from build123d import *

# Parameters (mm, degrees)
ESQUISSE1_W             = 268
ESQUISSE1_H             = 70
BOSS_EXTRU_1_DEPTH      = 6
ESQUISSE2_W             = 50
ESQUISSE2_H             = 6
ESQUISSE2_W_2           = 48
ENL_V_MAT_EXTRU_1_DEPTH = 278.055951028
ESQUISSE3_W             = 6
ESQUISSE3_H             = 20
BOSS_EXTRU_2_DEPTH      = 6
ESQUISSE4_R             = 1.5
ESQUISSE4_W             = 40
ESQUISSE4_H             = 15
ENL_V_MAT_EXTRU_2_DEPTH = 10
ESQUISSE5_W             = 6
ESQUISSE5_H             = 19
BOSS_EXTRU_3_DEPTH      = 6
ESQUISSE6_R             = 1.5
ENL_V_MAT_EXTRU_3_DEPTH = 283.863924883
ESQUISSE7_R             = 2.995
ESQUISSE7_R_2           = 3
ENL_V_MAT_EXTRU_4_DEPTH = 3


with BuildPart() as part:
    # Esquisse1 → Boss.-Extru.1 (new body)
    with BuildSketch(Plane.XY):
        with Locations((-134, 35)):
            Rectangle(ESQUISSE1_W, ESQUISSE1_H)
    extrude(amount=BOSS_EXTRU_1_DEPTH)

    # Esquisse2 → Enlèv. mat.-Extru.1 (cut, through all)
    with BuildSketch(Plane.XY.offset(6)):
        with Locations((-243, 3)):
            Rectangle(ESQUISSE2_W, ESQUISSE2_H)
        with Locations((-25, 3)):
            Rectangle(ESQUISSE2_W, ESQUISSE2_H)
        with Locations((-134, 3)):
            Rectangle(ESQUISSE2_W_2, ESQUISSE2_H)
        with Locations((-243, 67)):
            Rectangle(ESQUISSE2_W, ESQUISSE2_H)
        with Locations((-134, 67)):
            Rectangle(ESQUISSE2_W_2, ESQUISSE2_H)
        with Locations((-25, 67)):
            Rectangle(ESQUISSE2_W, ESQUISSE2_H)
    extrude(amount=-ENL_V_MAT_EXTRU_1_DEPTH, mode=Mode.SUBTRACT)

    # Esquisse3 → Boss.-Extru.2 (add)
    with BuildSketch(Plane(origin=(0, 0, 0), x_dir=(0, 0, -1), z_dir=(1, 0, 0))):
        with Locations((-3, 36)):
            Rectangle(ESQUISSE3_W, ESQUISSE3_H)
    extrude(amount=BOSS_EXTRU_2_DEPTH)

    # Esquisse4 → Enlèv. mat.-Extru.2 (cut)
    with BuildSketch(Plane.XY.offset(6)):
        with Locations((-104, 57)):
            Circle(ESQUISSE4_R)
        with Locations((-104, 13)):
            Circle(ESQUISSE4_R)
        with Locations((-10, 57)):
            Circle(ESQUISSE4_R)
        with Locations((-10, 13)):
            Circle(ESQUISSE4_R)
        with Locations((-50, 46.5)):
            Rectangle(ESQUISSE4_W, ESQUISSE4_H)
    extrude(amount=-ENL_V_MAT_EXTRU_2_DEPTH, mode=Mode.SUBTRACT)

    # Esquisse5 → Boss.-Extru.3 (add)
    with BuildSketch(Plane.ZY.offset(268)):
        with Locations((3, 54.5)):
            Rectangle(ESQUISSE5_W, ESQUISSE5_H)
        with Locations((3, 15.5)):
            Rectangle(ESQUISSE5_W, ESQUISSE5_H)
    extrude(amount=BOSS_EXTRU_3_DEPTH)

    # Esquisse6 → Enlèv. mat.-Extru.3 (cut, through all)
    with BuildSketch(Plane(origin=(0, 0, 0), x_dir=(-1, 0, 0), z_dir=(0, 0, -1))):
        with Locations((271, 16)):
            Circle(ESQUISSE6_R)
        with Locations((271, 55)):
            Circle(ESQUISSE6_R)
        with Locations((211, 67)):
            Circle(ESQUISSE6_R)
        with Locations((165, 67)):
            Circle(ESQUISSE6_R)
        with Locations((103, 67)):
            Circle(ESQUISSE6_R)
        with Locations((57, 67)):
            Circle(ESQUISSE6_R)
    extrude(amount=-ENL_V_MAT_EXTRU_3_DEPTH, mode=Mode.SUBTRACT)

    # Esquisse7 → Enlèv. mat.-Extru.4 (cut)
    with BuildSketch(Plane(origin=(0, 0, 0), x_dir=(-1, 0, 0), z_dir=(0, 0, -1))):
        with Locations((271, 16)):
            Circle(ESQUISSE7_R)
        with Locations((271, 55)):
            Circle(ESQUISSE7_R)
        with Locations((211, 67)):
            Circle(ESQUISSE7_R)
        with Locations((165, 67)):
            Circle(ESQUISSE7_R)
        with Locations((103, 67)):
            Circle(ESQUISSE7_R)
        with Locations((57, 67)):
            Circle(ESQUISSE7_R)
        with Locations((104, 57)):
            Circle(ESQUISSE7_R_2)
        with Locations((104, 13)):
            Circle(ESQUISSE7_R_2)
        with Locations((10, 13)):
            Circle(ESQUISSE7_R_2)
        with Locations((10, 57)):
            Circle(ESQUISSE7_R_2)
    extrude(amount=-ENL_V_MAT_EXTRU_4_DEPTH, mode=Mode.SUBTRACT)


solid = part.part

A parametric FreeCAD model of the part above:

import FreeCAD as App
import Part
import Sketcher
from FreeCAD import Vector
Q = App.Units.Quantity


def add_polygon(sketch, points):
    """Adds a closed chain of lines whose ends are joined by coincident constraints."""
    first, n = sketch.GeometryCount, len(points)
    for a, b in zip(points, points[1:] + points[:1]):
        sketch.addGeometry(Part.LineSegment(App.Vector(*a, 0), App.Vector(*b, 0)), False)
    for i in range(n):
        sketch.addConstraint(Sketcher.Constraint("Coincident", first + i, 2, first + (i + 1) % n, 1))

doc = App.newDocument("Part")
body = doc.addObject("PartDesign::Body", "Body")

# Sketch on XY plane
sketch1 = body.newObject("Sketcher::SketchObject", "Sketch")
sketch1.AttachmentSupport = (doc.getObject("XY_Plane"), [""])
sketch1.MapMode = "FlatFace"
add_polygon(sketch1, [(-268, 70), (-268, 0), (0, 0), (0, 70)])  # lines 0-3
sketch1.addConstraint([
    Sketcher.Constraint("Vertical", 0),
    Sketcher.Constraint("Horizontal", 1),
    Sketcher.Constraint("Vertical", 2),
    Sketcher.Constraint("Horizontal", 3),
    Sketcher.Constraint("Coincident", 1, 2, -1, 1),
    Sketcher.Constraint("DistanceX", 1, 1, 1, 2, Q("268 mm")),
    Sketcher.Constraint("DistanceY", 0, 2, 0, 1, Q("70 mm")),
])
pad1 = body.newObject("PartDesign::Pad", "Pad")
pad1.Profile = sketch1
pad1.Length = 6

# Sketch on XY plane
sketch2 = body.newObject("Sketcher::SketchObject", "Sketch001")
sketch2.AttachmentSupport = (doc.getObject("XY_Plane"), [""])
sketch2.MapMode = "FlatFace"
sketch2.AttachmentOffset = App.Placement(Vector(0, 0, 6), App.Rotation())
add_polygon(sketch2, [(-268, 6), (-268, 0), (-218, 0), (-218, 6)])  # lines 0-3
add_polygon(sketch2, [(-50, 6), (-50, 0), (0, 0), (0, 6)])  # lines 4-7
add_polygon(sketch2, [(-158, 6), (-158, 0), (-110, 0), (-110, 6)])  # lines 8-11
add_polygon(sketch2, [(-268, 70), (-268, 64), (-218, 64), (-218, 70)])  # lines 12-15
add_polygon(sketch2, [(-158, 70), (-158, 64), (-110, 64), (-110, 70)])  # lines 16-19
add_polygon(sketch2, [(-50, 70), (-50, 64), (0, 64), (0, 70)])  # lines 20-23
sketch2.addConstraint([
    Sketcher.Constraint("Vertical", 0),
    Sketcher.Constraint("Horizontal", 1),
    Sketcher.Constraint("Vertical", 2),
    Sketcher.Constraint("Horizontal", 3),
    Sketcher.Constraint("Vertical", 4),
    Sketcher.Constraint("Horizontal", 5),
    Sketcher.Constraint("Vertical", 6),
    Sketcher.Constraint("Horizontal", 7),
    Sketcher.Constraint("Vertical", 8),
    Sketcher.Constraint("Horizontal", 9),
    Sketcher.Constraint("Vertical", 10),
    Sketcher.Constraint("Horizontal", 11),
    Sketcher.Constraint("Vertical", 12),
    Sketcher.Constraint("Horizontal", 13),
    Sketcher.Constraint("Vertical", 14),
    Sketcher.Constraint("Horizontal", 15),
    Sketcher.Constraint("Vertical", 16),
    Sketcher.Constraint("Horizontal", 17),
    Sketcher.Constraint("Vertical", 18),
    Sketcher.Constraint("Horizontal", 19),
    Sketcher.Constraint("Vertical", 20),
    Sketcher.Constraint("Horizontal", 21),
    Sketcher.Constraint("Vertical", 22),
    Sketcher.Constraint("Horizontal", 23),
    Sketcher.Constraint("Coincident", 5, 2, -1, 1),
    Sketcher.Constraint("PointOnObject", 0, 2, -1),
    Sketcher.Constraint("PointOnObject", 8, 2, -1),
    Sketcher.Constraint("PointOnObject", 21, 2, -2),
    Sketcher.Constraint("Horizontal", 3, 2, 6, 2),
    Sketcher.Constraint("Horizontal", 7, 2, 10, 2),
    Sketcher.Constraint("Horizontal", 13, 2, 16, 2),
    Sketcher.Constraint("Horizontal", 15, 2, 18, 2),
    Sketcher.Constraint("Horizontal", 17, 2, 20, 2),
    Sketcher.Constraint("Horizontal", 19, 2, 22, 2),
    Sketcher.Constraint("Vertical", 3, 2, 12, 2),
    Sketcher.Constraint("Vertical", 2, 2, 13, 2),
    Sketcher.Constraint("Vertical", 11, 2, 16, 2),
    Sketcher.Constraint("Vertical", 10, 2, 17, 2),
    Sketcher.Constraint("Vertical", 7, 2, 20, 2),
    Sketcher.Constraint("Equal", 3, 5),
    Sketcher.Constraint("Equal", 10, 12),
    Sketcher.Constraint("DistanceX", 1, 1, 1, 2, Q("50 mm")),
    Sketcher.Constraint("DistanceX", 9, 1, 9, 2, Q("48 mm")),
    Sketcher.Constraint("DistanceY", 0, 2, 0, 1, Q("6 mm")),
    Sketcher.Constraint("DistanceX", 0, 2, -1, 1, Q("268 mm")),
    Sketcher.Constraint("DistanceX", 8, 2, -1, 1, Q("158 mm")),
    Sketcher.Constraint("DistanceY", -1, 1, 12, 2, Q("64 mm")),
])
pocket1 = body.newObject("PartDesign::Pocket", "Pocket")
pocket1.Profile = sketch2
pocket1.Type = "ThroughAll"

# Sketch on YZ plane
sketch3 = body.newObject("Sketcher::SketchObject", "Sketch002")
sketch3.AttachmentSupport = (doc.getObject("YZ_Plane"), [""])
sketch3.MapMode = "FlatFace"
add_polygon(sketch3, [(46, 6), (26, 6), (26, 0), (46, 0)])  # lines 0-3
sketch3.addConstraint([
    Sketcher.Constraint("Horizontal", 0),
    Sketcher.Constraint("Vertical", 1),
    Sketcher.Constraint("Horizontal", 2),
    Sketcher.Constraint("Vertical", 3),
    Sketcher.Constraint("PointOnObject", 1, 2, -1),
    Sketcher.Constraint("DistanceX", 0, 2, 0, 1, Q("20 mm")),
    Sketcher.Constraint("DistanceY", 1, 2, 1, 1, Q("6 mm")),
    Sketcher.Constraint("DistanceX", -1, 1, 0, 2, Q("26 mm")),
])
pad2 = body.newObject("PartDesign::Pad", "Pad001")
pad2.Profile = sketch3
pad2.Length = 6

# Sketch on XY plane
sketch4 = body.newObject("Sketcher::SketchObject", "Sketch003")
sketch4.AttachmentSupport = (doc.getObject("XY_Plane"), [""])
sketch4.MapMode = "FlatFace"
sketch4.AttachmentOffset = App.Placement(Vector(0, 0, 6), App.Rotation())
sketch4.addGeometry(Part.Circle(Vector(-104, 57, 0), Vector(0, 0, 1), 1.5), False)  # 0
sketch4.addGeometry(Part.Circle(Vector(-104, 13, 0), Vector(0, 0, 1), 1.5), False)  # 1
sketch4.addGeometry(Part.Circle(Vector(-10, 57, 0), Vector(0, 0, 1), 1.5), False)  # 2
sketch4.addGeometry(Part.Circle(Vector(-10, 13, 0), Vector(0, 0, 1), 1.5), False)  # 3
add_polygon(sketch4, [(-70, 54), (-70, 39), (-30, 39), (-30, 54)])  # lines 4-7
sketch4.addConstraint([
    Sketcher.Constraint("Vertical", 4),
    Sketcher.Constraint("Horizontal", 5),
    Sketcher.Constraint("Vertical", 6),
    Sketcher.Constraint("Horizontal", 7),
    Sketcher.Constraint("Equal", 0, 1),
    Sketcher.Constraint("Equal", 1, 2),
    Sketcher.Constraint("Equal", 2, 3),
    Sketcher.Constraint("Horizontal", 0, 3, 2, 3),
    Sketcher.Constraint("Horizontal", 1, 3, 3, 3),
    Sketcher.Constraint("Vertical", 0, 3, 1, 3),
    Sketcher.Constraint("Vertical", 2, 3, 3, 3),
    Sketcher.Constraint("Diameter", 0, Q("3 mm")),
    Sketcher.Constraint("DistanceX", 5, 1, 5, 2, Q("40 mm")),
    Sketcher.Constraint("DistanceY", 4, 2, 4, 1, Q("15 mm")),
    Sketcher.Constraint("DistanceX", 0, 3, -1, 1, Q("104 mm")),
    Sketcher.Constraint("DistanceY", -1, 1, 0, 3, Q("57 mm")),
    Sketcher.Constraint("DistanceY", -1, 1, 1, 3, Q("13 mm")),
    Sketcher.Constraint("DistanceX", 2, 3, -1, 1, Q("10 mm")),
    Sketcher.Constraint("DistanceX", 4, 2, -1, 1, Q("70 mm")),
    Sketcher.Constraint("DistanceY", -1, 1, 4, 2, Q("39 mm")),
])
pocket2 = body.newObject("PartDesign::Pocket", "Pocket001")
pocket2.Profile = sketch4
pocket2.Length = 10

# Sketch on YZ plane
sketch5 = body.newObject("Sketcher::SketchObject", "Sketch004")
sketch5.AttachmentSupport = (doc.getObject("YZ_Plane"), [""])
sketch5.MapMode = "FlatFace"
sketch5.AttachmentOffset = App.Placement(Vector(0, 0, -268), App.Rotation())
add_polygon(sketch5, [(64, 0), (45, 0), (45, 6), (64, 6)])  # lines 0-3
add_polygon(sketch5, [(25, 0), (6, 0), (6, 6), (25, 6)])  # lines 4-7
sketch5.addConstraint([
    Sketcher.Constraint("Horizontal", 0),
    Sketcher.Constraint("Vertical", 1),
    Sketcher.Constraint("Horizontal", 2),
    Sketcher.Constraint("Vertical", 3),
    Sketcher.Constraint("Horizontal", 4),
    Sketcher.Constraint("Vertical", 5),
    Sketcher.Constraint("Horizontal", 6),
    Sketcher.Constraint("Vertical", 7),
    Sketcher.Constraint("PointOnObject", 0, 2, -1),
    Sketcher.Constraint("PointOnObject", 4, 2, -1),
    Sketcher.Constraint("Horizontal", 2, 2, 5, 2),
    Sketcher.Constraint("Equal", 2, 4),
    Sketcher.Constraint("DistanceX", 0, 2, 0, 1, Q("19 mm")),
    Sketcher.Constraint("DistanceY", 1, 1, 1, 2, Q("6 mm")),
    Sketcher.Constraint("DistanceX", -1, 1, 0, 2, Q("45 mm")),
    Sketcher.Constraint("DistanceX", -1, 1, 4, 2, Q("6 mm")),
])
pad3 = body.newObject("PartDesign::Pad", "Pad002")
pad3.Profile = sketch5
pad3.Length = 6
pad3.Reversed = True

# Sketch on XY plane
sketch6 = body.newObject("Sketcher::SketchObject", "Sketch005")
sketch6.AttachmentSupport = (doc.getObject("XY_Plane"), [""])
sketch6.MapMode = "FlatFace"
sketch6.addGeometry([
    Part.Circle(Vector(-271, 16, 0), Vector(0, 0, 1), 1.5),  # 0
    Part.Circle(Vector(-271, 55, 0), Vector(0, 0, 1), 1.5),  # 1
    Part.Circle(Vector(-211, 67, 0), Vector(0, 0, 1), 1.5),  # 2
    Part.Circle(Vector(-165, 67, 0), Vector(0, 0, 1), 1.5),  # 3
    Part.Circle(Vector(-103, 67, 0), Vector(0, 0, 1), 1.5),  # 4
    Part.Circle(Vector(-57, 67, 0), Vector(0, 0, 1), 1.5),  # 5
], False)
sketch6.addConstraint([
    Sketcher.Constraint("Equal", 0, 1),
    Sketcher.Constraint("Equal", 1, 2),
    Sketcher.Constraint("Equal", 2, 3),
    Sketcher.Constraint("Equal", 3, 4),
    Sketcher.Constraint("Equal", 4, 5),
    Sketcher.Constraint("Horizontal", 2, 3, 3, 3),
    Sketcher.Constraint("Horizontal", 3, 3, 4, 3),
    Sketcher.Constraint("Horizontal", 4, 3, 5, 3),
    Sketcher.Constraint("Vertical", 0, 3, 1, 3),
    Sketcher.Constraint("Diameter", 0, Q("3 mm")),
    Sketcher.Constraint("DistanceX", 0, 3, -1, 1, Q("271 mm")),
    Sketcher.Constraint("DistanceY", -1, 1, 0, 3, Q("16 mm")),
    Sketcher.Constraint("DistanceY", -1, 1, 1, 3, Q("55 mm")),
    Sketcher.Constraint("DistanceX", 2, 3, -1, 1, Q("211 mm")),
    Sketcher.Constraint("DistanceY", -1, 1, 2, 3, Q("67 mm")),
    Sketcher.Constraint("DistanceX", 3, 3, -1, 1, Q("165 mm")),
    Sketcher.Constraint("DistanceX", 4, 3, -1, 1, Q("103 mm")),
    Sketcher.Constraint("DistanceX", 5, 3, -1, 1, Q("57 mm")),
])
pocket3 = body.newObject("PartDesign::Pocket", "Pocket002")
pocket3.Profile = sketch6
pocket3.Type = "ThroughAll"
pocket3.Reversed = True

# Sketch on XY plane
sketch7 = body.newObject("Sketcher::SketchObject", "Sketch006")
sketch7.AttachmentSupport = (doc.getObject("XY_Plane"), [""])
sketch7.MapMode = "FlatFace"
sketch7.addGeometry([
    Part.Circle(Vector(-271, 16, 0), Vector(0, 0, 1), 3),  # 0
    Part.Circle(Vector(-271, 55, 0), Vector(0, 0, 1), 3),  # 1
    Part.Circle(Vector(-211, 67, 0), Vector(0, 0, 1), 3),  # 2
    Part.Circle(Vector(-165, 67, 0), Vector(0, 0, 1), 3),  # 3
    Part.Circle(Vector(-103, 67, 0), Vector(0, 0, 1), 3),  # 4
    Part.Circle(Vector(-57, 67, 0), Vector(0, 0, 1), 3),  # 5
    Part.Circle(Vector(-104, 57, 0), Vector(0, 0, 1), 3),  # 6
    Part.Circle(Vector(-104, 13, 0), Vector(0, 0, 1), 3),  # 7
    Part.Circle(Vector(-10, 13, 0), Vector(0, 0, 1), 3),  # 8
    Part.Circle(Vector(-10, 57, 0), Vector(0, 0, 1), 3),  # 9
], False)
sketch7.addConstraint([
    Sketcher.Constraint("Equal", 0, 1),
    Sketcher.Constraint("Equal", 1, 2),
    Sketcher.Constraint("Equal", 2, 3),
    Sketcher.Constraint("Equal", 3, 4),
    Sketcher.Constraint("Equal", 4, 5),
    Sketcher.Constraint("Equal", 6, 7),
    Sketcher.Constraint("Equal", 7, 8),
    Sketcher.Constraint("Equal", 8, 9),
    Sketcher.Constraint("Horizontal", 2, 3, 3, 3),
    Sketcher.Constraint("Horizontal", 3, 3, 4, 3),
    Sketcher.Constraint("Horizontal", 4, 3, 5, 3),
    Sketcher.Constraint("Horizontal", 7, 3, 8, 3),
    Sketcher.Constraint("Horizontal", 6, 3, 9, 3),
    Sketcher.Constraint("Vertical", 0, 3, 1, 3),
    Sketcher.Constraint("Vertical", 6, 3, 7, 3),
    Sketcher.Constraint("Vertical", 8, 3, 9, 3),
    Sketcher.Constraint("Diameter", 6, Q("6 mm")),
    Sketcher.Constraint("Diameter", 0, Q("5.99 mm")),
    Sketcher.Constraint("DistanceX", 0, 3, -1, 1, Q("271 mm")),
    Sketcher.Constraint("DistanceY", -1, 1, 0, 3, Q("16 mm")),
    Sketcher.Constraint("DistanceY", -1, 1, 1, 3, Q("55 mm")),
    Sketcher.Constraint("DistanceX", 2, 3, -1, 1, Q("211 mm")),
    Sketcher.Constraint("DistanceY", -1, 1, 2, 3, Q("67 mm")),
    Sketcher.Constraint("DistanceX", 3, 3, -1, 1, Q("165 mm")),
    Sketcher.Constraint("DistanceX", 4, 3, -1, 1, Q("103 mm")),
    Sketcher.Constraint("DistanceX", 5, 3, -1, 1, Q("57 mm")),
    Sketcher.Constraint("DistanceX", 6, 3, -1, 1, Q("104 mm")),
    Sketcher.Constraint("DistanceY", -1, 1, 6, 3, Q("57 mm")),
    Sketcher.Constraint("DistanceY", -1, 1, 7, 3, Q("13 mm")),
    Sketcher.Constraint("DistanceX", 8, 3, -1, 1, Q("10 mm")),
])
pocket4 = body.newObject("PartDesign::Pocket", "Pocket003")
pocket4.Profile = sketch7
pocket4.Length = 3
pocket4.Reversed = True

doc.recompute()
